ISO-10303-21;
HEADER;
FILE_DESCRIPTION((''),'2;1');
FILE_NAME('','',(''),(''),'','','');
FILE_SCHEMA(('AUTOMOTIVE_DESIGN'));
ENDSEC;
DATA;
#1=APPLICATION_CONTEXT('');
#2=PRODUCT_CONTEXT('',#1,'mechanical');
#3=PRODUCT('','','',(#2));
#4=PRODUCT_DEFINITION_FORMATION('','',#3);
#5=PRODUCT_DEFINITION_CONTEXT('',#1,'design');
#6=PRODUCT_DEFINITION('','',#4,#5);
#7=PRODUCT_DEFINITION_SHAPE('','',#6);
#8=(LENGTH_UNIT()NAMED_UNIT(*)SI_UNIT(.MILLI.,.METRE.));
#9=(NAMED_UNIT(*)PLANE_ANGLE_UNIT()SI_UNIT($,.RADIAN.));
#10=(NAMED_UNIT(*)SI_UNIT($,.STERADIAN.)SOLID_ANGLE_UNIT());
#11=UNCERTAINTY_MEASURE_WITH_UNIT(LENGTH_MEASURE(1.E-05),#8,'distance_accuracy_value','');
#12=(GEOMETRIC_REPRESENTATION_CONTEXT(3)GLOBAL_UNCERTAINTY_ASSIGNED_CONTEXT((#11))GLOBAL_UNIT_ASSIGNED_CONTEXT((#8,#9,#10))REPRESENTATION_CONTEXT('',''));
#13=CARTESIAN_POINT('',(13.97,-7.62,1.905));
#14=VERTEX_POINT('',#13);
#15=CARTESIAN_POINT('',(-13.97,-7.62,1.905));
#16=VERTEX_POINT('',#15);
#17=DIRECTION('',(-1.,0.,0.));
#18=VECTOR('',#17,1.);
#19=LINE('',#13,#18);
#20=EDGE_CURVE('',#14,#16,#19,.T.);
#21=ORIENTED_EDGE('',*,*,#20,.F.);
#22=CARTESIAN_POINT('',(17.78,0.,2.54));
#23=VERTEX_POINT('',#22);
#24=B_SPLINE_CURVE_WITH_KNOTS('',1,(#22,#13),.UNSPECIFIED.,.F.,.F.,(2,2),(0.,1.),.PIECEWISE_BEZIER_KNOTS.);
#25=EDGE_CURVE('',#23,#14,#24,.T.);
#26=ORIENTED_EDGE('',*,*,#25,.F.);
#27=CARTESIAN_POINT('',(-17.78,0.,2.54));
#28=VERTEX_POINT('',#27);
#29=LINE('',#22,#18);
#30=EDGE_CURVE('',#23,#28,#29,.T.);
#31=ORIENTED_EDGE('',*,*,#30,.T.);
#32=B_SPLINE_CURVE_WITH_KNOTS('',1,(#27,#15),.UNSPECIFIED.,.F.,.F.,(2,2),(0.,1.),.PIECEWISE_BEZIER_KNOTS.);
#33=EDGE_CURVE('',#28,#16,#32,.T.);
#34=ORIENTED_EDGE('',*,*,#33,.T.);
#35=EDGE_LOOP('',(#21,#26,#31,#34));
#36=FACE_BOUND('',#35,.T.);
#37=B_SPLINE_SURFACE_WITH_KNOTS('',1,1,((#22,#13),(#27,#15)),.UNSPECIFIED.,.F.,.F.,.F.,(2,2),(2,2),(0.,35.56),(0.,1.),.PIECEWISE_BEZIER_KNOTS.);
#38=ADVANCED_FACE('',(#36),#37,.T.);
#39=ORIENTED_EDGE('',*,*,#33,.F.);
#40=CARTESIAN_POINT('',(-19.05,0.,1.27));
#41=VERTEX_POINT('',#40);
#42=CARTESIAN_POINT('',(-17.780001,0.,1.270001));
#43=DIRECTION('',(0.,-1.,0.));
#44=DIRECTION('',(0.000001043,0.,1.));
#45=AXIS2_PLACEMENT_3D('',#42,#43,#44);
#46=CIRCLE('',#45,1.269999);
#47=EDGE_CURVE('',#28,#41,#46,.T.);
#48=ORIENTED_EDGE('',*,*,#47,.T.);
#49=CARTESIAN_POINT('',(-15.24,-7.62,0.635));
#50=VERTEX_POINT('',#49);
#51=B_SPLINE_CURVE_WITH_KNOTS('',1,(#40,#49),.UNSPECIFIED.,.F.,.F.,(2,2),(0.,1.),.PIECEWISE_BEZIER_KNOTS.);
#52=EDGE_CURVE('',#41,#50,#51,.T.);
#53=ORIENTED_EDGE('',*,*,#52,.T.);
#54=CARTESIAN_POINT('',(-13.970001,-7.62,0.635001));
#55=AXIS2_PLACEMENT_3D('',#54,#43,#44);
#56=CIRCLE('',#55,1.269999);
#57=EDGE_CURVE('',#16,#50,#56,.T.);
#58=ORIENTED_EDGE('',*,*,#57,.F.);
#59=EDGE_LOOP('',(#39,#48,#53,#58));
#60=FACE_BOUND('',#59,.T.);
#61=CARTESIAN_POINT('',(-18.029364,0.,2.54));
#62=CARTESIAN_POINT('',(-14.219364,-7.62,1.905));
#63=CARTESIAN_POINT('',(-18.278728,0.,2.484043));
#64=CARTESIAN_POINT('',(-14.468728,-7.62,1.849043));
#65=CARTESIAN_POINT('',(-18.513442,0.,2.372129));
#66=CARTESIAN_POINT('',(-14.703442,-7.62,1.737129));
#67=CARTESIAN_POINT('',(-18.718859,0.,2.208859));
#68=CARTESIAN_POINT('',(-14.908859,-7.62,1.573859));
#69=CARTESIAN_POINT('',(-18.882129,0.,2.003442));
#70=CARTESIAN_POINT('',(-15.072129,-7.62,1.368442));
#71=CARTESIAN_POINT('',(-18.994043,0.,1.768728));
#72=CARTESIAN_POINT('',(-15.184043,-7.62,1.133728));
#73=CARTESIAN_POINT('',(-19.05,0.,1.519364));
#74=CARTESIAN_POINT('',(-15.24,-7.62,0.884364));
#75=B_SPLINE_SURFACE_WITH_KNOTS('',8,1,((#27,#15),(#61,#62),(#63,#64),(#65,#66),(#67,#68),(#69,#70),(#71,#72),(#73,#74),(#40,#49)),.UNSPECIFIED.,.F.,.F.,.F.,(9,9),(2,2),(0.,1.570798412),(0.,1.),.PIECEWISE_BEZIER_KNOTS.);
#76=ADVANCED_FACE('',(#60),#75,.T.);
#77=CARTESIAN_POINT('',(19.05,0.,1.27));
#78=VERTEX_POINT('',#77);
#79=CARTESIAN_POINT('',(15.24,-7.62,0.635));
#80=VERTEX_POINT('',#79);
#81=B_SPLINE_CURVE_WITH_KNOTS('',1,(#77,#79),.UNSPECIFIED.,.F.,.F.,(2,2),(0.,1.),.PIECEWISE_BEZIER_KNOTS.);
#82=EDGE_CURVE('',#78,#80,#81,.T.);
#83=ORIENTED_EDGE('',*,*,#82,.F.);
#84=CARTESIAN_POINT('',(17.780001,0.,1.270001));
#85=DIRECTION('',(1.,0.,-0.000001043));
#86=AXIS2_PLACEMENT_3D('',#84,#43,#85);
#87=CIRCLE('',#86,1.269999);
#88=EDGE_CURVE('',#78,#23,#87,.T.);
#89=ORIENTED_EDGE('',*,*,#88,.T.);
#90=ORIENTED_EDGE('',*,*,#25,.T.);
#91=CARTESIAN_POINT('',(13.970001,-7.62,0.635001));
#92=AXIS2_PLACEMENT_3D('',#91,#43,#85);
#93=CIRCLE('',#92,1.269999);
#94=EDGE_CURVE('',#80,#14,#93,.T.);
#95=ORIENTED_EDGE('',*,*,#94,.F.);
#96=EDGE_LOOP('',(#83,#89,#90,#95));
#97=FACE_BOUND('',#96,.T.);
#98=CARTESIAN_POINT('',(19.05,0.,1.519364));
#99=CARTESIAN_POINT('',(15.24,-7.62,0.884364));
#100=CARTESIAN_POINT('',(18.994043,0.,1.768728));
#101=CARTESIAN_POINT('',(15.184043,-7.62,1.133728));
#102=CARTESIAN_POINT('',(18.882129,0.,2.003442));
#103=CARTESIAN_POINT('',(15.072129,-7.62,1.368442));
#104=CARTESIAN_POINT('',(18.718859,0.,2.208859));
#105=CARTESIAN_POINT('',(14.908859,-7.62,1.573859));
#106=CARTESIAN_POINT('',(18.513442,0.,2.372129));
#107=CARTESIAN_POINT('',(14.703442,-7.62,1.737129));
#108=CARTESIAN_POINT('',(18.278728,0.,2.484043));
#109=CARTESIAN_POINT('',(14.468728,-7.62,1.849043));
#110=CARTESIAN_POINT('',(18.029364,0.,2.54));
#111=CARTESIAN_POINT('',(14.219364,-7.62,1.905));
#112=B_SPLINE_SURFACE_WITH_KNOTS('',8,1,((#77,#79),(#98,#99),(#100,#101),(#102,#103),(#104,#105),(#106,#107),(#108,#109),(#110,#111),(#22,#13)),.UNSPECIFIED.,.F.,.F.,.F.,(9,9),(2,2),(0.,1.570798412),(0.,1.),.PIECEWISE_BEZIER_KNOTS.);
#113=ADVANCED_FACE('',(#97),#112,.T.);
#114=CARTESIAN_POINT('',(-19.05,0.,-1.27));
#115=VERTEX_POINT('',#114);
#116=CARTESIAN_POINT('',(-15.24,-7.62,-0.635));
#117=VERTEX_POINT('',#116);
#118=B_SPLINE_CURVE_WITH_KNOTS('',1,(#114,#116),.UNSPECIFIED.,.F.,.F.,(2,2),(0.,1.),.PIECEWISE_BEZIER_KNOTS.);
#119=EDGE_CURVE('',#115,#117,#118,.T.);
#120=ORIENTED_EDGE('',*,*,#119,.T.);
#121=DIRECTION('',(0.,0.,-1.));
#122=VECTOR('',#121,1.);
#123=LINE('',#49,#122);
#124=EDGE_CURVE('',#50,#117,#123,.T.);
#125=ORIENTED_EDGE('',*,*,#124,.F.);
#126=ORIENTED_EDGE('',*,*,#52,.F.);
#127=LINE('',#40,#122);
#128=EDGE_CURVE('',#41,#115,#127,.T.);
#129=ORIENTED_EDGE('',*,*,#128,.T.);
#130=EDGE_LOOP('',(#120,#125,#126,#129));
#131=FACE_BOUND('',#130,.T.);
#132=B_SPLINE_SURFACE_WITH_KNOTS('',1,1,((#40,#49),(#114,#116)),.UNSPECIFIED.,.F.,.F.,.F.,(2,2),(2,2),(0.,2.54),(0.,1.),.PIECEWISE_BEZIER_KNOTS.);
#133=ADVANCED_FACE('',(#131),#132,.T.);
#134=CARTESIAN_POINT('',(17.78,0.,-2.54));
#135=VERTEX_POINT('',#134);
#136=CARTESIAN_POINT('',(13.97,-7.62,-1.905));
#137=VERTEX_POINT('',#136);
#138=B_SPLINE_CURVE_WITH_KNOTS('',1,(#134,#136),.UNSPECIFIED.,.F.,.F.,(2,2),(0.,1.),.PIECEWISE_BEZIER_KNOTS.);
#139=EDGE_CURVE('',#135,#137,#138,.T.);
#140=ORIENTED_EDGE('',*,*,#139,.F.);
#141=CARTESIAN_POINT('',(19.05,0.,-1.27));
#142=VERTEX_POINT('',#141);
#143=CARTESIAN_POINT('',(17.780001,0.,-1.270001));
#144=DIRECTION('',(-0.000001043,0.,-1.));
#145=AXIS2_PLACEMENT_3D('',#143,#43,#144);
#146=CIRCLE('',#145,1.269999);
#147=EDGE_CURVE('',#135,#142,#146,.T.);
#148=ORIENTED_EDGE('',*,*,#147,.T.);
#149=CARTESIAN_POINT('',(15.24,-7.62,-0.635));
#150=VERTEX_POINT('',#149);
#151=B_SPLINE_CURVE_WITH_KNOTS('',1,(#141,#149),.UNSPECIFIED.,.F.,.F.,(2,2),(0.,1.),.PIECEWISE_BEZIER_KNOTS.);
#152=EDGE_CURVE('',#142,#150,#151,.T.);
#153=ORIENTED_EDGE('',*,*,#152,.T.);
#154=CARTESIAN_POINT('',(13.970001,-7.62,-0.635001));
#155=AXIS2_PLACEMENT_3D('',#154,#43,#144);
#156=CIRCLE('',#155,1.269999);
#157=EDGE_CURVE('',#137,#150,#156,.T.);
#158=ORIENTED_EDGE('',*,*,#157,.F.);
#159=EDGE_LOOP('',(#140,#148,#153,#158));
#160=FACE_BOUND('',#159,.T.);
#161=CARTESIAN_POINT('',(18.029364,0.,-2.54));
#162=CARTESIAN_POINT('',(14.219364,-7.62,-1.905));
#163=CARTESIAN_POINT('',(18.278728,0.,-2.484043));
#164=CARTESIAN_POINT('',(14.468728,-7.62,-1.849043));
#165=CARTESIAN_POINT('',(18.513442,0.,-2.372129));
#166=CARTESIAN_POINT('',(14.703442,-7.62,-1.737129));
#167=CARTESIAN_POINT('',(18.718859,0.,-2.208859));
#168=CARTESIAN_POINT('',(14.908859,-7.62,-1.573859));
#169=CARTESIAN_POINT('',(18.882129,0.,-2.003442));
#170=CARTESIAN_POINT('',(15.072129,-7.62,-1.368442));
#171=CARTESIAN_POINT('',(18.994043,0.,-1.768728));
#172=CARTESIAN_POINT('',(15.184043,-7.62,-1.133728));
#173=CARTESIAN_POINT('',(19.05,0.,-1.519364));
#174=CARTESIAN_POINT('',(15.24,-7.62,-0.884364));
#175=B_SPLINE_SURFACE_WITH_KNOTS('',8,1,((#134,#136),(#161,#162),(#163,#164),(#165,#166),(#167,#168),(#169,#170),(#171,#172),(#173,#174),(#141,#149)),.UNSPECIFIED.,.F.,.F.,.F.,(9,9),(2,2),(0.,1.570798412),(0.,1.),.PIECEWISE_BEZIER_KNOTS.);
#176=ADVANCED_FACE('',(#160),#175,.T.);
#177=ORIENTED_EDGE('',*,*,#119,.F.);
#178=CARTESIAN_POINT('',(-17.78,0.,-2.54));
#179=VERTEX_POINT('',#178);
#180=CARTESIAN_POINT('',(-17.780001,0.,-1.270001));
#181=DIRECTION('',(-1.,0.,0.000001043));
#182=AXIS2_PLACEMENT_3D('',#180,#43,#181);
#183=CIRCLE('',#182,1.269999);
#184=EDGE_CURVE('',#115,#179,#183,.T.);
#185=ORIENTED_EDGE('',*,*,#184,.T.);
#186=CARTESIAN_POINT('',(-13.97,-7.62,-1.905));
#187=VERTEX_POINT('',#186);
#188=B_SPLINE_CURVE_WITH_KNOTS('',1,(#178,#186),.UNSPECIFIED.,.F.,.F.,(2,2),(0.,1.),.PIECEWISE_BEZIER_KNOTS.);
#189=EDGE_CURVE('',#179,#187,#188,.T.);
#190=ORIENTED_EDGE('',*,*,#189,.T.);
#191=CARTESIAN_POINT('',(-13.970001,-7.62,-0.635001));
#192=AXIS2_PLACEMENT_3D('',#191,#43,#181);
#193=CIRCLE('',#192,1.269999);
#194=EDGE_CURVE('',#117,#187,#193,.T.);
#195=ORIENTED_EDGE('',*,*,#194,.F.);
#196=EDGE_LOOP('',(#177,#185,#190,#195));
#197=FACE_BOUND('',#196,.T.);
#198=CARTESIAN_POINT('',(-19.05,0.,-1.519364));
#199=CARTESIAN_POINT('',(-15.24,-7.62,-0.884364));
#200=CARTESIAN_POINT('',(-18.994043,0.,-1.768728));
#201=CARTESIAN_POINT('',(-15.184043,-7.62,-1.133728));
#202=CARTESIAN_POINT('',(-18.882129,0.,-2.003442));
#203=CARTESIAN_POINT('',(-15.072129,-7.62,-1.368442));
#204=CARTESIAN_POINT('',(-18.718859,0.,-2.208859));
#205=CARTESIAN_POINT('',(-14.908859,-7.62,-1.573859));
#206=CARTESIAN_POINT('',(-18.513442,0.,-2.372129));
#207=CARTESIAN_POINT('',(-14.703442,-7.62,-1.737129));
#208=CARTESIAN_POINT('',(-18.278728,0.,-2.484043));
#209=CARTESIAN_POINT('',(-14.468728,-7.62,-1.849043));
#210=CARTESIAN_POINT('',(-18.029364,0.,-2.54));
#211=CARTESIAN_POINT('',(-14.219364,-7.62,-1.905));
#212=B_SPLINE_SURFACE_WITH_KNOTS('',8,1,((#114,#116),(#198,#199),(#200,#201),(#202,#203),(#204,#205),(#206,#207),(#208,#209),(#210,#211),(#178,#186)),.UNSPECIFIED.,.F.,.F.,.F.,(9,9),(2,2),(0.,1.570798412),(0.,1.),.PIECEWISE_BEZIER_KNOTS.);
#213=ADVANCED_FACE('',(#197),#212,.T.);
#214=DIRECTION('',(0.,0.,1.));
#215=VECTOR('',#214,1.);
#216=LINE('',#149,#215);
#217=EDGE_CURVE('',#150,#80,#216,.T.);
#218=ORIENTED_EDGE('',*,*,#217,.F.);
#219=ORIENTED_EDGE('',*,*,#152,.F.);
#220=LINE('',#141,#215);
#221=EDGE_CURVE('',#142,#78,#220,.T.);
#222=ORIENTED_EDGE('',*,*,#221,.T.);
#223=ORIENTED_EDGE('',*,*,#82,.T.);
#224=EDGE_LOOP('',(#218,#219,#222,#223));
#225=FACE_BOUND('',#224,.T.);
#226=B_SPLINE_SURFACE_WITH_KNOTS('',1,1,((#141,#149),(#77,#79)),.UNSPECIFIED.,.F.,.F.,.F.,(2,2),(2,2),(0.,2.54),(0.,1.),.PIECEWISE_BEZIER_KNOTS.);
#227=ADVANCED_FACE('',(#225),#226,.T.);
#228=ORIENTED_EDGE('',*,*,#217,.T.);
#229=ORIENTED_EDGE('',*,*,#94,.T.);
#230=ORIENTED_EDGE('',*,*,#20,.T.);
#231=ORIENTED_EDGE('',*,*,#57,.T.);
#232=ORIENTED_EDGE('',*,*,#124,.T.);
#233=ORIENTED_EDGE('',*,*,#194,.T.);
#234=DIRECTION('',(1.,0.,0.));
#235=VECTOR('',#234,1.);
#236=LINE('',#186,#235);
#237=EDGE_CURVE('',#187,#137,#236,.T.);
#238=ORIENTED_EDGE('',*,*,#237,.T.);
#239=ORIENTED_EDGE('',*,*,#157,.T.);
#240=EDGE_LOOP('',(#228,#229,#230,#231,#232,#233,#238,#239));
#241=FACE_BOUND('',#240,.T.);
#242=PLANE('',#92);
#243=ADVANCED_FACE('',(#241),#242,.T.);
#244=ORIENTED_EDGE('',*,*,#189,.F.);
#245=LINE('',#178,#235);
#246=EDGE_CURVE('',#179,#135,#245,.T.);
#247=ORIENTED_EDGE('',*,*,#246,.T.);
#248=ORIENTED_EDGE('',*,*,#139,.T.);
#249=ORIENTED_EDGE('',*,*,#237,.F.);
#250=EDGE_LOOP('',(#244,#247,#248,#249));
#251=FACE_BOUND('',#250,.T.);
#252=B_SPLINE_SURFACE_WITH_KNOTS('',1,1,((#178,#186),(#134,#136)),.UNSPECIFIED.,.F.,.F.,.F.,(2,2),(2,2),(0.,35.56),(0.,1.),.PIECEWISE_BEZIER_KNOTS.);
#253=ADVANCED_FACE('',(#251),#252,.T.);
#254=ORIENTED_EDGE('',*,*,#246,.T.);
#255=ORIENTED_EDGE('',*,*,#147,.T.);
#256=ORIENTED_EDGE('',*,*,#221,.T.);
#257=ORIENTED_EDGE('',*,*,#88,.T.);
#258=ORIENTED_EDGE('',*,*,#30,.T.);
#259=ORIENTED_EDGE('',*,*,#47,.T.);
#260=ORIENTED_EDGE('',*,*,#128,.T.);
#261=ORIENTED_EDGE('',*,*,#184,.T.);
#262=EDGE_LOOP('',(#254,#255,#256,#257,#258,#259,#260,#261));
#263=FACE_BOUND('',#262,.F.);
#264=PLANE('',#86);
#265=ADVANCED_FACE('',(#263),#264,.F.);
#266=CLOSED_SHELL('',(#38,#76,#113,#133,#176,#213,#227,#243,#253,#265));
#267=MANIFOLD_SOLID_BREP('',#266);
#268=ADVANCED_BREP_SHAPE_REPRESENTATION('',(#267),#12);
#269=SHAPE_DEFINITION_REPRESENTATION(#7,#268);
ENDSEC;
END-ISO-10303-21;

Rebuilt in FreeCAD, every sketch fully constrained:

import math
import FreeCAD as App
import Part
import Sketcher
Q = App.Units.Quantity

doc = App.newDocument("Part")
body = doc.addObject("PartDesign::Body", "Body")

sketch1 = body.newObject("Sketcher::SketchObject", "Sketch")
sketch1.AttachmentSupport = (doc.getObject("XZ_Plane"), [""])
sketch1.MapMode = "FlatFace"
sketch1.addGeometry([
    Part.ArcOfCircle(Part.Circle(App.Vector(17.780001, 1.270001, 0), App.Vector(0, 0, 1), 1.269999), math.radians(-0.00006), math.radians(90.00006)),
    Part.LineSegment(App.Vector(17.78, 2.54, 0), App.Vector(-17.78, 2.54, 0)),
    Part.ArcOfCircle(Part.Circle(App.Vector(-17.780001, 1.270001, 0), App.Vector(0, 0, 1), 1.269999), math.radians(89.99994), math.radians(180.00006)),
    Part.LineSegment(App.Vector(-19.05, 1.27, 0), App.Vector(-19.05, -1.27, 0)),
    Part.ArcOfCircle(Part.Circle(App.Vector(-17.780001, -1.270001, 0), App.Vector(0, 0, 1), 1.269999), math.radians(179.99994), math.radians(270.00006)),
    Part.LineSegment(App.Vector(-17.78, -2.54, 0), App.Vector(17.78, -2.54, 0)),
    Part.ArcOfCircle(Part.Circle(App.Vector(17.780001, -1.270001, 0), App.Vector(0, 0, 1), 1.269999), math.radians(-90.00006), math.radians(0.00006)),
    Part.LineSegment(App.Vector(19.05, -1.27, 0), App.Vector(19.05, 1.27, 0)),
], False)
sketch1.addConstraint([
    Sketcher.Constraint("Tangent", 0, 2, 1, 1),
    Sketcher.Constraint("Tangent", 1, 2, 2, 1),
    Sketcher.Constraint("Tangent", 2, 2, 3, 1),
    Sketcher.Constraint("Tangent", 3, 2, 4, 1),
    Sketcher.Constraint("Tangent", 4, 2, 5, 1),
    Sketcher.Constraint("Tangent", 5, 2, 6, 1),
    Sketcher.Constraint("Tangent", 6, 2, 7, 1),
    Sketcher.Constraint("Tangent", 7, 2, 0, 1),
    Sketcher.Constraint("Horizontal", 1),
    Sketcher.Constraint("Vertical", 3),
    Sketcher.Constraint("Horizontal", 5),
    Sketcher.Constraint("Vertical", 7),
    Sketcher.Constraint("Equal", 0, 2),
    Sketcher.Constraint("Equal", 2, 4),
    Sketcher.Constraint("Equal", 4, 6),
    Sketcher.Constraint("Symmetric", 0, 3, 4, 3, -1, 1),
    Sketcher.Constraint("Radius", 0, Q("0.0499999 in")),
    Sketcher.Constraint("DistanceX", 1, 2, 1, 1, Q("1.4 in")),
    Sketcher.Constraint("DistanceY", 3, 2, 3, 1, Q("0.1 in")),
])

sketch2 = body.newObject("Sketcher::SketchObject", "Sketch001")
sketch2.AttachmentSupport = (doc.getObject("XZ_Plane"), [""])
sketch2.MapMode = "FlatFace"
sketch2.AttachmentOffset = App.Placement(App.Vector(0, 0, 0.3 * 25.4), App.Rotation())
sketch2.addGeometry([
    Part.ArcOfCircle(Part.Circle(App.Vector(13.970001, 0.635001, 0), App.Vector(0, 0, 1), 1.269999), math.radians(-0.00006), math.radians(90.00006)),
    Part.LineSegment(App.Vector(13.97, 1.905, 0), App.Vector(-13.97, 1.905, 0)),
    Part.ArcOfCircle(Part.Circle(App.Vector(-13.970001, 0.635001, 0), App.Vector(0, 0, 1), 1.269999), math.radians(89.99994), math.radians(180.00006)),
    Part.LineSegment(App.Vector(-15.24, 0.635, 0), App.Vector(-15.24, -0.635, 0)),
    Part.ArcOfCircle(Part.Circle(App.Vector(-13.970001, -0.635001, 0), App.Vector(0, 0, 1), 1.269999), math.radians(179.99994), math.radians(270.00006)),
    Part.LineSegment(App.Vector(-13.97, -1.905, 0), App.Vector(13.97, -1.905, 0)),
    Part.ArcOfCircle(Part.Circle(App.Vector(13.970001, -0.635001, 0), App.Vector(0, 0, 1), 1.269999), math.radians(-90.00006), math.radians(0.00006)),
    Part.LineSegment(App.Vector(15.24, -0.635, 0), App.Vector(15.24, 0.635, 0)),
], False)
sketch2.addConstraint([
    Sketcher.Constraint("Tangent", 0, 2, 1, 1),
    Sketcher.Constraint("Tangent", 1, 2, 2, 1),
    Sketcher.Constraint("Tangent", 2, 2, 3, 1),
    Sketcher.Constraint("Tangent", 3, 2, 4, 1),
    Sketcher.Constraint("Tangent", 4, 2, 5, 1),
    Sketcher.Constraint("Tangent", 5, 2, 6, 1),
    Sketcher.Constraint("Tangent", 6, 2, 7, 1),
    Sketcher.Constraint("Tangent", 7, 2, 0, 1),
    Sketcher.Constraint("Horizontal", 1),
    Sketcher.Constraint("Vertical", 3),
    Sketcher.Constraint("Horizontal", 5),
    Sketcher.Constraint("Vertical", 7),
    Sketcher.Constraint("Equal", 0, 2),
    Sketcher.Constraint("Equal", 2, 4),
    Sketcher.Constraint("Equal", 4, 6),
    Sketcher.Constraint("Symmetric", 0, 3, 4, 3, -1, 1),
    Sketcher.Constraint("Radius", 0, Q("0.0499999 in")),
    Sketcher.Constraint("DistanceX", 1, 2, 1, 1, Q("1.1 in")),
    Sketcher.Constraint("DistanceY", 3, 2, 3, 1, Q("0.05 in")),
])

additiveloft = body.newObject("PartDesign::AdditiveLoft", "AdditiveLoft")
additiveloft.Profile = sketch1
additiveloft.Sections = [sketch2]

doc.recompute()
